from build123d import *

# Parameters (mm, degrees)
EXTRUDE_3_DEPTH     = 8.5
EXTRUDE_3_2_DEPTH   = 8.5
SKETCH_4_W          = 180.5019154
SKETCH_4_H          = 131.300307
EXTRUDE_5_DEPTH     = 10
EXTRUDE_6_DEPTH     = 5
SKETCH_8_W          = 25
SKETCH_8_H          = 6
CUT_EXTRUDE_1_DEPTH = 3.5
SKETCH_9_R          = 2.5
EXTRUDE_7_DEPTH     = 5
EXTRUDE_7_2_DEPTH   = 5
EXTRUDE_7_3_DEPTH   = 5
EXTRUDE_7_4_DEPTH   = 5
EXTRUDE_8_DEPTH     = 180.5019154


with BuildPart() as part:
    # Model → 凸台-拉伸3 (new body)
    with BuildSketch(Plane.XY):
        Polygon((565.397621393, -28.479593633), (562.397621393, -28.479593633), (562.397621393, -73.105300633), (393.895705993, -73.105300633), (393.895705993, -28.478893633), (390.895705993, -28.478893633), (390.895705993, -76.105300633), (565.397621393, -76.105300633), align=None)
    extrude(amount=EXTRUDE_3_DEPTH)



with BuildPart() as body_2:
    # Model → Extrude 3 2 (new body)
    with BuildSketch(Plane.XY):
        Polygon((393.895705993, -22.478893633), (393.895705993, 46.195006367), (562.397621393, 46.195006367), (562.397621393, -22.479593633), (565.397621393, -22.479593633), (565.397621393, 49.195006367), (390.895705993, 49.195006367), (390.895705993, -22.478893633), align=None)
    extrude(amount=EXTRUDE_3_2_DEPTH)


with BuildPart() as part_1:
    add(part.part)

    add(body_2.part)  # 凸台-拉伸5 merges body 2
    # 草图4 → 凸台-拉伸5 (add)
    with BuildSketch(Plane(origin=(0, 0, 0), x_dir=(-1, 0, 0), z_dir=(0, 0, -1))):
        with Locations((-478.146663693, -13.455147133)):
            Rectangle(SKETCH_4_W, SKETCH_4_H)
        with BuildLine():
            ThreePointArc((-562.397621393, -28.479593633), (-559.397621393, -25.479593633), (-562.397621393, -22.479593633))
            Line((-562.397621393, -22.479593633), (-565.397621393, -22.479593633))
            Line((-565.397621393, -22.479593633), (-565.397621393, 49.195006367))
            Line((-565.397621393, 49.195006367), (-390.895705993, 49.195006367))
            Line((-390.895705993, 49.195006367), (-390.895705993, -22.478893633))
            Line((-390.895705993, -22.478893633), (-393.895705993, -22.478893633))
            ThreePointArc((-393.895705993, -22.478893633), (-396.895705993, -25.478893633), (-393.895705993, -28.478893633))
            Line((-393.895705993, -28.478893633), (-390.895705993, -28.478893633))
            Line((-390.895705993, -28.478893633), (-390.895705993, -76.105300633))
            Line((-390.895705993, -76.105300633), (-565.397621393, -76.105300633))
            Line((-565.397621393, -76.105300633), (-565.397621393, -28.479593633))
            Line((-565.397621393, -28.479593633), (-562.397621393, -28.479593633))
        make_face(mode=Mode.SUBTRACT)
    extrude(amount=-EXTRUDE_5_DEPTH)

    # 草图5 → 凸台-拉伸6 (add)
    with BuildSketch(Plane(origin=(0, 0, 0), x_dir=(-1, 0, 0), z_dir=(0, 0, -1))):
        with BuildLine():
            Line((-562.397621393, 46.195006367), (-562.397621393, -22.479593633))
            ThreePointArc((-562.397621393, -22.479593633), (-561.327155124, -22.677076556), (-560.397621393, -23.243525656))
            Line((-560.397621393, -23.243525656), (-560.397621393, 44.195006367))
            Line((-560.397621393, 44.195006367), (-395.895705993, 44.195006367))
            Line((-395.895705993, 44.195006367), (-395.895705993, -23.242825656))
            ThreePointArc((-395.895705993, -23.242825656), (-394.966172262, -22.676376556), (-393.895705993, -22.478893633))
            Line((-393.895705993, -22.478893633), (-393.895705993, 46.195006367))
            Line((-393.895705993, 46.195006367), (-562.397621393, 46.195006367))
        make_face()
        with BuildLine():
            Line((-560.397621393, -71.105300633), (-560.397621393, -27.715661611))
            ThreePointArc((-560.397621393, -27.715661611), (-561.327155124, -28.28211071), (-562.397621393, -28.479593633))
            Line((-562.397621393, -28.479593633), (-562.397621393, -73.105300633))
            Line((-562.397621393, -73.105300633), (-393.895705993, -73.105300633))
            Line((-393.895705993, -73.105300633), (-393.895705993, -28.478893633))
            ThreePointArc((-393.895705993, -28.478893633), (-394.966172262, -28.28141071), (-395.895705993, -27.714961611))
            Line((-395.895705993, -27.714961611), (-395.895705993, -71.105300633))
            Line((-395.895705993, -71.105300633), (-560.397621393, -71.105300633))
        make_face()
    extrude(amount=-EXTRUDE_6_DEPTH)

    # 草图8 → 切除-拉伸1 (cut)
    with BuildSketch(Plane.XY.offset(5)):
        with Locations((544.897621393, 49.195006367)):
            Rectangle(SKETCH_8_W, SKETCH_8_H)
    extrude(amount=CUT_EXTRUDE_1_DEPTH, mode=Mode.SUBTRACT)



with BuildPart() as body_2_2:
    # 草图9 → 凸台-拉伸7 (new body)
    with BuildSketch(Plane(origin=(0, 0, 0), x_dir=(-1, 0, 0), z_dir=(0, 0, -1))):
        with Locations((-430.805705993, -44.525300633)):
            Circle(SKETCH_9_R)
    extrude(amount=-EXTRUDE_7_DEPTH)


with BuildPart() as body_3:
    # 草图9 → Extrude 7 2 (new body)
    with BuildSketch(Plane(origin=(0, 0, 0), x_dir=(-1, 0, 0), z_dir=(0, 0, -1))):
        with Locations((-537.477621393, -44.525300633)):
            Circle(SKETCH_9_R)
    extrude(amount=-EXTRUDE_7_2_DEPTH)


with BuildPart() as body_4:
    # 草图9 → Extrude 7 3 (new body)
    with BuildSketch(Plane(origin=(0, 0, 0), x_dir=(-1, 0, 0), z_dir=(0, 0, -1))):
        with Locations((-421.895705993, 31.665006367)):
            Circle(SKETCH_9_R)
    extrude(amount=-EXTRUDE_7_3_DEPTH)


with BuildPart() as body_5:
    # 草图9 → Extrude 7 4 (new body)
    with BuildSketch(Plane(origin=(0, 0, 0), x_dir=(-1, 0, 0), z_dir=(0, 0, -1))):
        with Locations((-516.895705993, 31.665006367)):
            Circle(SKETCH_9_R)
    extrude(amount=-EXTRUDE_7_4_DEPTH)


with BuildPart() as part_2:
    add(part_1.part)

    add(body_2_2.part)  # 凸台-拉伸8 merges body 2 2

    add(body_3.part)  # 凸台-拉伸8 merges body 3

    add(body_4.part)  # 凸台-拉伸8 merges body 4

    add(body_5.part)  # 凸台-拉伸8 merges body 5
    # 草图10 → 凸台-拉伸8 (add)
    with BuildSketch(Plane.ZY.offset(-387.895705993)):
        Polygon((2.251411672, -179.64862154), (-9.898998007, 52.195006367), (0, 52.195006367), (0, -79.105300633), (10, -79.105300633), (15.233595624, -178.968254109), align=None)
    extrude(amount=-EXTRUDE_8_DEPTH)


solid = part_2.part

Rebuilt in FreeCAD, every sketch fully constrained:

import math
import FreeCAD as App
import Part
import Sketcher
Q = App.Units.Quantity

doc = App.newDocument("Part")
body = doc.addObject("PartDesign::Body", "Body")

sketch1 = body.newObject("Sketcher::SketchObject", "Sketch")
sketch1.AttachmentSupport = (doc.getObject("XY_Plane"), [""])
sketch1.MapMode = "FlatFace"
sketch1.addGeometry([
    Part.LineSegment(App.Vector(565.4, -28.5, 0), App.Vector(562.4, -28.5, 0)),
    Part.LineSegment(App.Vector(562.4, -28.5, 0), App.Vector(562.4, -73.1, 0)),
    Part.LineSegment(App.Vector(562.4, -73.1, 0), App.Vector(393.9, -73.1, 0)),
    Part.LineSegment(App.Vector(393.9, -73.1, 0), App.Vector(393.9, -28.5, 0)),
    Part.LineSegment(App.Vector(393.9, -28.5, 0), App.Vector(390.9, -28.5, 0)),
    Part.LineSegment(App.Vector(390.9, -28.5, 0), App.Vector(390.9, -76.1, 0)),
    Part.LineSegment(App.Vector(390.9, -76.1, 0), App.Vector(565.4, -76.1, 0)),
    Part.LineSegment(App.Vector(565.4, -76.1, 0), App.Vector(565.4, -28.5, 0)),
], False)
sketch1.addConstraint([
    Sketcher.Constraint("Coincident", 0, 2, 1, 1),
    Sketcher.Constraint("Coincident", 1, 2, 2, 1),
    Sketcher.Constraint("Coincident", 2, 2, 3, 1),
    Sketcher.Constraint("Coincident", 3, 2, 4, 1),
    Sketcher.Constraint("Coincident", 4, 2, 5, 1),
    Sketcher.Constraint("Coincident", 5, 2, 6, 1),
    Sketcher.Constraint("Coincident", 6, 2, 7, 1),
    Sketcher.Constraint("Coincident", 7, 2, 0, 1),
    Sketcher.Constraint("Horizontal", 0),
    Sketcher.Constraint("Vertical", 1),
    Sketcher.Constraint("Horizontal", 2),
    Sketcher.Constraint("Vertical", 3),
    Sketcher.Constraint("Horizontal", 4),
    Sketcher.Constraint("Vertical", 5),
    Sketcher.Constraint("Horizontal", 6),
    Sketcher.Constraint("Vertical", 7),
    Sketcher.Constraint("Equal", 0, 4),
    Sketcher.Constraint("DistanceX", 0, 2, 0, 1, 3.0),
    Sketcher.Constraint("DistanceY", 5, 2, 2, 2, 3.0),
    Sketcher.Constraint("DistanceY", 1, 2, -1, 1, 73.105301),
    Sketcher.Constraint("DistanceY", 0, 2, 3, 2, 0.0007),
    Sketcher.Constraint("DistanceX", 2, 2, 2, 1, 168.501915),
    Sketcher.Constraint("DistanceY", 1, 2, 1, 1, 44.625707),
    Sketcher.Constraint("DistanceX", -1, 1, 0, 2, 562.397621),
])
pad1 = body.newObject("PartDesign::Pad", "Pad")
pad1.Profile = sketch1
pad1.Length = 8.5
body2 = doc.addObject("PartDesign::Body", "Body001")

sketch2 = body2.newObject("Sketcher::SketchObject", "Sketch001")
sketch2.AttachmentSupport = (doc.getObject("XY_Plane001"), [""])
sketch2.MapMode = "FlatFace"
sketch2.addGeometry([
    Part.LineSegment(App.Vector(393.9, -22.5, 0), App.Vector(393.9, 46.2, 0)),
    Part.LineSegment(App.Vector(393.9, 46.2, 0), App.Vector(562.4, 46.2, 0)),
    Part.LineSegment(App.Vector(562.4, 46.2, 0), App.Vector(562.4, -22.5, 0)),
    Part.LineSegment(App.Vector(562.4, -22.5, 0), App.Vector(565.4, -22.5, 0)),
    Part.LineSegment(App.Vector(565.4, -22.5, 0), App.Vector(565.4, 49.2, 0)),
    Part.LineSegment(App.Vector(565.4, 49.2, 0), App.Vector(390.9, 49.2, 0)),
    Part.LineSegment(App.Vector(390.9, 49.2, 0), App.Vector(390.9, -22.5, 0)),
    Part.LineSegment(App.Vector(390.9, -22.5, 0), App.Vector(393.9, -22.5, 0)),
], False)
sketch2.addConstraint([
    Sketcher.Constraint("Coincident", 0, 2, 1, 1),
    Sketcher.Constraint("Coincident", 1, 2, 2, 1),
    Sketcher.Constraint("Coincident", 2, 2, 3, 1),
    Sketcher.Constraint("Coincident", 3, 2, 4, 1),
    Sketcher.Constraint("Coincident", 4, 2, 5, 1),
    Sketcher.Constraint("Coincident", 5, 2, 6, 1),
    Sketcher.Constraint("Coincident", 6, 2, 7, 1),
    Sketcher.Constraint("Coincident", 7, 2, 0, 1),
    Sketcher.Constraint("Vertical", 0),
    Sketcher.Constraint("Horizontal", 1),
    Sketcher.Constraint("Vertical", 2),
    Sketcher.Constraint("Horizontal", 3),
    Sketcher.Constraint("Vertical", 4),
    Sketcher.Constraint("Horizontal", 5),
    Sketcher.Constraint("Vertical", 6),
    Sketcher.Constraint("Horizontal", 7),
    Sketcher.Constraint("Equal", 3, 7),
    Sketcher.Constraint("DistanceX", 3, 1, 3, 2, 3.0),
    Sketcher.Constraint("DistanceY", 1, 2, 4, 2, 3.0),
    Sketcher.Constraint("DistanceY", 0, 1, 0, 2, 68.6739),
    Sketcher.Constraint("DistanceY", 2, 2, 2, 1, 68.6746),
    Sketcher.Constraint("DistanceX", 1, 1, 1, 2, 168.501915),
    Sketcher.Constraint("DistanceX", -1, 1, 1, 2, 562.397621),
    Sketcher.Constraint("DistanceY", -1, 1, 0, 2, 46.195006),
])
pad2 = body2.newObject("PartDesign::Pad", "Pad001")
pad2.Profile = sketch2
pad2.Length = 8.5
body.AllowCompound = True
doc.recompute()

boolean = body.newObject("PartDesign::Boolean", "Boolean")
boolean.Type = "Fuse"
boolean.addObjects([body2])

sketch3 = body.newObject("Sketcher::SketchObject", "Sketch002")
sketch3.AttachmentSupport = (doc.getObject("XY_Plane"), [""])
sketch3.MapMode = "FlatFace"
sketch3.addGeometry([
    Part.LineSegment(App.Vector(568.4, 52.2, 0), App.Vector(568.4, -79.1, 0)),
    Part.LineSegment(App.Vector(568.4, -79.1, 0), App.Vector(387.9, -79.1, 0)),
    Part.LineSegment(App.Vector(387.9, -79.1, 0), App.Vector(387.9, 52.2, 0)),
    Part.LineSegment(App.Vector(387.9, 52.2, 0), App.Vector(568.4, 52.2, 0)),
    Part.LineSegment(App.Vector(565.4, -28.5, 0), App.Vector(562.4, -28.5, 0)),
    Part.ArcOfCircle(Part.Circle(App.Vector(562.4, -25.5, 0), App.Vector(0, 0, 1), 3), math.radians(90), math.radians(270)),
    Part.LineSegment(App.Vector(562.4, -22.5, 0), App.Vector(565.4, -22.5, 0)),
    Part.LineSegment(App.Vector(565.4, -22.5, 0), App.Vector(565.4, 49.2, 0)),
    Part.LineSegment(App.Vector(565.4, 49.2, 0), App.Vector(390.9, 49.2, 0)),
    Part.LineSegment(App.Vector(390.9, 49.2, 0), App.Vector(390.9, -22.5, 0)),
    Part.LineSegment(App.Vector(390.9, -22.5, 0), App.Vector(393.9, -22.5, 0)),
    Part.ArcOfCircle(Part.Circle(App.Vector(393.9, -25.5, 0), App.Vector(0, 0, 1), 3), math.radians(-90), math.radians(90)),
    Part.LineSegment(App.Vector(393.9, -28.5, 0), App.Vector(390.9, -28.5, 0)),
    Part.LineSegment(App.Vector(390.9, -28.5, 0), App.Vector(390.9, -76.1, 0)),
    Part.LineSegment(App.Vector(390.9, -76.1, 0), App.Vector(565.4, -76.1, 0)),
    Part.LineSegment(App.Vector(565.4, -76.1, 0), App.Vector(565.4, -28.5, 0)),
], False)
sketch3.addConstraint([
    Sketcher.Constraint("Coincident", 0, 2, 1, 1),
    Sketcher.Constraint("Coincident", 1, 2, 2, 1),
    Sketcher.Constraint("Coincident", 2, 2, 3, 1),
    Sketcher.Constraint("Coincident", 3, 2, 0, 1),
    Sketcher.Constraint("Tangent", 4, 2, 5, 2),
    Sketcher.Constraint("Tangent", 5, 1, 6, 1),
    Sketcher.Constraint("Coincident", 6, 2, 7, 1),
    Sketcher.Constraint("Coincident", 7, 2, 8, 1),
    Sketcher.Constraint("Coincident", 8, 2, 9, 1),
    Sketcher.Constraint("Coincident", 9, 2, 10, 1),
    Sketcher.Constraint("Tangent", 10, 2, 11, 2),
    Sketcher.Constraint("Tangent", 11, 1, 12, 1),
    Sketcher.Constraint("Coincident", 12, 2, 13, 1),
    Sketcher.Constraint("Coincident", 13, 2, 14, 1),
    Sketcher.Constraint("Coincident", 14, 2, 15, 1),
    Sketcher.Constraint("Coincident", 15, 2, 4, 1),
    Sketcher.Constraint("Vertical", 0),
    Sketcher.Constraint("Horizontal", 1),
    Sketcher.Constraint("Vertical", 2),
    Sketcher.Constraint("Horizontal", 3),
    Sketcher.Constraint("Horizontal", 4),
    Sketcher.Constraint("Horizontal", 6),
    Sketcher.Constraint("Vertical", 7),
    Sketcher.Constraint("Horizontal", 8),
    Sketcher.Constraint("Vertical", 9),
    Sketcher.Constraint("Horizontal", 10),
    Sketcher.Constraint("Horizontal", 12),
    Sketcher.Constraint("Vertical", 13),
    Sketcher.Constraint("Horizontal", 14),
    Sketcher.Constraint("Vertical", 15),
    Sketcher.Constraint("Equal", 5, 11),
    Sketcher.Constraint("Vertical", 9, 2, 12, 2),
    Sketcher.Constraint("Vertical", 7, 2, 14, 2),
    Sketcher.Constraint("Equal", 6, 10),
    Sketcher.Constraint("Radius", 5, 3.0),
    Sketcher.Constraint("DistanceX", 4, 2, 4, 1, 3.0),
    Sketcher.Constraint("DistanceX", 5, 3, 0, 2, 6.0),
    Sketcher.Constraint("DistanceX", 1, 2, 11, 3, 6.0),
    Sketcher.Constraint("DistanceY", 7, 2, 3, 2, 3.0),
    Sketcher.Constraint("DistanceY", 1, 2, 13, 2, 3.0),
    Sketcher.Constraint("DistanceY", 7, 1, 7, 2, 71.6746),
    Sketcher.Constraint("DistanceY", 9, 2, 9, 1, 71.6739),
    Sketcher.Constraint("DistanceY", 0, 2, -1, 1, 79.105301),
    Sketcher.Constraint("DistanceX", 1, 2, 1, 1, 180.501915),
    Sketcher.Constraint("DistanceY", 0, 2, 0, 1, 131.300307),
    Sketcher.Constraint("DistanceX", -1, 1, 5, 3, 562.397621),
])
pad3 = body.newObject("PartDesign::Pad", "Pad002")
pad3.Profile = sketch3
pad3.Length = 10

sketch4 = body.newObject("Sketcher::SketchObject", "Sketch003")
sketch4.AttachmentSupport = (doc.getObject("XY_Plane"), [""])
sketch4.MapMode = "FlatFace"
sketch4.addGeometry([
    Part.LineSegment(App.Vector(562.4, 46.2, 0), App.Vector(562.4, -22.5, 0)),
    Part.ArcOfCircle(Part.Circle(App.Vector(562.4, -25.5, 0), App.Vector(0, 0, 1), 3), math.radians(90), math.radians(132)),
    Part.LineSegment(App.Vector(560.4, -23.2, 0), App.Vector(560.4, 44.2, 0)),
    Part.LineSegment(App.Vector(560.4, 44.2, 0), App.Vector(395.9, 44.2, 0)),
    Part.LineSegment(App.Vector(395.9, 44.2, 0), App.Vector(395.9, -23.2, 0)),
    Part.ArcOfCircle(Part.Circle(App.Vector(393.9, -25.5, 0), App.Vector(0, 0, 1), 3), math.radians(48), math.radians(90)),
    Part.LineSegment(App.Vector(393.9, -22.5, 0), App.Vector(393.9, 46.2, 0)),
    Part.LineSegment(App.Vector(393.9, 46.2, 0), App.Vector(562.4, 46.2, 0)),
    Part.LineSegment(App.Vector(560.4, -71.1, 0), App.Vector(560.4, -27.7, 0)),
    Part.ArcOfCircle(Part.Circle(App.Vector(562.4, -25.5, 0), App.Vector(0, 0, 1), 3), math.radians(-132), math.radians(-90)),
    Part.LineSegment(App.Vector(562.4, -28.5, 0), App.Vector(562.4, -73.1, 0)),
    Part.LineSegment(App.Vector(562.4, -73.1, 0), App.Vector(393.9, -73.1, 0)),
    Part.LineSegment(App.Vector(393.9, -73.1, 0), App.Vector(393.9, -28.5, 0)),
    Part.ArcOfCircle(Part.Circle(App.Vector(393.9, -25.5, 0), App.Vector(0, 0, 1), 3), math.radians(-90), math.radians(-48)),
    Part.LineSegment(App.Vector(395.9, -27.7, 0), App.Vector(395.9, -71.1, 0)),
    Part.LineSegment(App.Vector(395.9, -71.1, 0), App.Vector(560.4, -71.1, 0)),
], False)
sketch4.addConstraint([
    Sketcher.Constraint("Coincident", 0, 2, 1, 1),
    Sketcher.Constraint("Coincident", 1, 2, 2, 1),
    Sketcher.Constraint("Coincident", 2, 2, 3, 1),
    Sketcher.Constraint("Coincident", 3, 2, 4, 1),
    Sketcher.Constraint("Coincident", 4, 2, 5, 1),
    Sketcher.Constraint("Coincident", 5, 2, 6, 1),
    Sketcher.Constraint("Coincident", 6, 2, 7, 1),
    Sketcher.Constraint("Coincident", 7, 2, 0, 1),
    Sketcher.Constraint("Coincident", 8, 2, 9, 1),
    Sketcher.Constraint("Coincident", 9, 2, 10, 1),
    Sketcher.Constraint("Coincident", 10, 2, 11, 1),
    Sketcher.Constraint("Coincident", 11, 2, 12, 1),
    Sketcher.Constraint("Coincident", 12, 2, 13, 1),
    Sketcher.Constraint("Coincident", 13, 2, 14, 1),
    Sketcher.Constraint("Coincident", 14, 2, 15, 1),
    Sketcher.Constraint("Coincident", 15, 2, 8, 1),
    Sketcher.Constraint("Vertical", 0),
    Sketcher.Constraint("Vertical", 2),
    Sketcher.Constraint("Horizontal", 3),
    Sketcher.Constraint("Vertical", 4),
    Sketcher.Constraint("Vertical", 6),
    Sketcher.Constraint("Horizontal", 7),
    Sketcher.Constraint("Vertical", 8),
    Sketcher.Constraint("Vertical", 10),
    Sketcher.Constraint("Horizontal", 11),
    Sketcher.Constraint("Vertical", 12),
    Sketcher.Constraint("Vertical", 14),
    Sketcher.Constraint("Horizontal", 15),
    Sketcher.Constraint("Coincident", 9, 3, 1, 3),
    Sketcher.Constraint("Coincident", 13, 3, 5, 3),
    Sketcher.Constraint("Equal", 1, 5),
    Sketcher.Constraint("Equal", 5, 9),
    Sketcher.Constraint("Equal", 9, 13),
    Sketcher.Constraint("Vertical", 9, 3, 0, 2),
    Sketcher.Constraint("Vertical", 13, 3, 5, 2),
    Sketcher.Constraint("Vertical", 2, 2, 8, 2),
    Sketcher.Constraint("Vertical", 7, 2, 9, 2),
    Sketcher.Constraint("Vertical", 6, 2, 11, 2),
    Sketcher.Constraint("Vertical", 4, 2, 13, 2),
    Sketcher.Constraint("Radius", 1, 3.0),
    Sketcher.Constraint("DistanceX", 1, 2, 0, 2, 2.0),
    Sketcher.Constraint("DistanceX", 5, 3, 3, 2, 2.0),
    Sketcher.Constraint("DistanceY", 3, 2, 6, 2, 2.0),
    Sketcher.Constraint("DistanceY", 11, 2, 14, 2, 2.0),
    Sketcher.Constraint("DistanceY", 0, 2, 0, 1, 68.6746),
    Sketcher.Constraint("DistanceY", 6, 1, 6, 2, 68.6739),
    Sketcher.Constraint("DistanceY", 8, 1, 8, 2, 43.389639),
    Sketcher.Constraint("DistanceY", 10, 2, -1, 1, 73.105301),
    Sketcher.Constraint("DistanceX", 3, 2, 3, 1, 164.501915),
    Sketcher.Constraint("DistanceX", -1, 1, 1, 3, 562.397621),
])
pad4 = body.newObject("PartDesign::Pad", "Pad003")
pad4.Profile = sketch4
pad4.Length = 5

sketch5 = body.newObject("Sketcher::SketchObject", "Sketch004")
sketch5.AttachmentSupport = (doc.getObject("XY_Plane"), [""])
sketch5.MapMode = "FlatFace"
sketch5.AttachmentOffset = App.Placement(App.Vector(0, 0, 5), App.Rotation())
sketch5.addGeometry([
    Part.LineSegment(App.Vector(532, 52, 0), App.Vector(532, 46, 0)),
    Part.LineSegment(App.Vector(532, 46, 0), App.Vector(557, 46, 0)),
    Part.LineSegment(App.Vector(557, 46, 0), App.Vector(557, 52, 0)),
    Part.LineSegment(App.Vector(557, 52, 0), App.Vector(532, 52, 0)),
], False)
sketch5.addConstraint([
    Sketcher.Constraint("Coincident", 0, 2, 1, 1),
    Sketcher.Constraint("Coincident", 1, 2, 2, 1),
    Sketcher.Constraint("Coincident", 2, 2, 3, 1),
    Sketcher.Constraint("Coincident", 3, 2, 0, 1),
    Sketcher.Constraint("Vertical", 0),
    Sketcher.Constraint("Horizontal", 1),
    Sketcher.Constraint("Vertical", 2),
    Sketcher.Constraint("Horizontal", 3),
    Sketcher.Constraint("DistanceX", 1, 1, 1, 2, 25.0),
    Sketcher.Constraint("DistanceY", 0, 2, 0, 1, 6.0),
    Sketcher.Constraint("DistanceX", -1, 1, 0, 2, 532.397621),
    Sketcher.Constraint("DistanceY", -1, 1, 0, 2, 46.195006),
])
pocket1 = body.newObject("PartDesign::Pocket", "Pocket")
pocket1.Profile = sketch5
pocket1.Length = 3.5
pocket1.Reversed = True
body3 = doc.addObject("PartDesign::Body", "Body002")

sketch6 = body3.newObject("Sketcher::SketchObject", "Sketch005")
sketch6.AttachmentSupport = (doc.getObject("XY_Plane002"), [""])
sketch6.MapMode = "FlatFace"
sketch6.addGeometry(Part.Circle(App.Vector(430.8, -44.5, 0), App.Vector(0, 0, 1), 2.5), False)
sketch6.addConstraint([
    Sketcher.Constraint("Diameter", 0, 5.0),
    Sketcher.Constraint("DistanceY", 0, 3, -1, 1, 44.525301),
    Sketcher.Constraint("DistanceX", -1, 1, 0, 3, 430.805706),
])
pad5 = body3.newObject("PartDesign::Pad", "Pad004")
pad5.Profile = sketch6
pad5.Length = 5
body4 = doc.addObject("PartDesign::Body", "Body003")

sketch7 = body4.newObject("Sketcher::SketchObject", "Sketch006")
sketch7.AttachmentSupport = (doc.getObject("XY_Plane003"), [""])
sketch7.MapMode = "FlatFace"
sketch7.addGeometry(Part.Circle(App.Vector(537.5, -44.5, 0), App.Vector(0, 0, 1), 2.5), False)
sketch7.addConstraint([
    Sketcher.Constraint("Diameter", 0, 5.0),
    Sketcher.Constraint("DistanceY", 0, 3, -1, 1, 44.525301),
    Sketcher.Constraint("DistanceX", -1, 1, 0, 3, 537.477621),
])
pad6 = body4.newObject("PartDesign::Pad", "Pad005")
pad6.Profile = sketch7
pad6.Length = 5
body5 = doc.addObject("PartDesign::Body", "Body004")

sketch8 = body5.newObject("Sketcher::SketchObject", "Sketch007")
sketch8.AttachmentSupport = (doc.getObject("XY_Plane004"), [""])
sketch8.MapMode = "FlatFace"
sketch8.addGeometry(Part.Circle(App.Vector(421.9, 31.7, 0), App.Vector(0, 0, 1), 2.5), False)
sketch8.addConstraint([
    Sketcher.Constraint("Diameter", 0, 5.0),
    Sketcher.Constraint("DistanceX", -1, 1, 0, 3, 421.895706),
    Sketcher.Constraint("DistanceY", -1, 1, 0, 3, 31.665006),
])
pad7 = body5.newObject("PartDesign::Pad", "Pad006")
pad7.Profile = sketch8
pad7.Length = 5
body6 = doc.addObject("PartDesign::Body", "Body005")

sketch9 = body6.newObject("Sketcher::SketchObject", "Sketch008")
sketch9.AttachmentSupport = (doc.getObject("XY_Plane005"), [""])
sketch9.MapMode = "FlatFace"
sketch9.addGeometry(Part.Circle(App.Vector(516.9, 31.7, 0), App.Vector(0, 0, 1), 2.5), False)
sketch9.addConstraint([
    Sketcher.Constraint("Diameter", 0, 5.0),
    Sketcher.Constraint("DistanceX", -1, 1, 0, 3, 516.895706),
    Sketcher.Constraint("DistanceY", -1, 1, 0, 3, 31.665006),
])
pad8 = body6.newObject("PartDesign::Pad", "Pad007")
pad8.Profile = sketch9
pad8.Length = 5
body.AllowCompound = True
doc.recompute()

boolean2 = body.newObject("PartDesign::Boolean", "Boolean001")
boolean2.Type = "Fuse"
boolean2.addObjects([body3])
doc.recompute()

boolean3 = body.newObject("PartDesign::Boolean", "Boolean002")
boolean3.Type = "Fuse"
boolean3.addObjects([body4])
doc.recompute()

boolean4 = body.newObject("PartDesign::Boolean", "Boolean003")
boolean4.Type = "Fuse"
boolean4.addObjects([body5])
doc.recompute()

boolean5 = body.newObject("PartDesign::Boolean", "Boolean004")
boolean5.Type = "Fuse"
boolean5.addObjects([body6])

sketch10 = body.newObject("Sketcher::SketchObject", "Sketch009")
sketch10.AttachmentSupport = (doc.getObject("YZ_Plane"), [""])
sketch10.MapMode = "FlatFace"
sketch10.AttachmentOffset = App.Placement(App.Vector(0, 0, 387.895706), App.Rotation())
sketch10.addGeometry([
    Part.LineSegment(App.Vector(52, -10, 0), App.Vector(-180, 2, 0)),
    Part.LineSegment(App.Vector(-180, 2, 0), App.Vector(-179, 15, 0)),
    Part.LineSegment(App.Vector(-179, 15, 0), App.Vector(-79, 10, 0)),
    Part.LineSegment(App.Vector(-79, 10, 0), App.Vector(-79, 0, 0)),
    Part.LineSegment(App.Vector(-79, 0, 0), App.Vector(52, 0, 0)),
    Part.LineSegment(App.Vector(52, 0, 0), App.Vector(52, -10, 0)),
], False)
sketch10.addConstraint([
    Sketcher.Constraint("Coincident", 0, 2, 1, 1),
    Sketcher.Constraint("Coincident", 1, 2, 2, 1),
    Sketcher.Constraint("Coincident", 2, 2, 3, 1),
    Sketcher.Constraint("Coincident", 3, 2, 4, 1),
    Sketcher.Constraint("Coincident", 4, 2, 5, 1),
    Sketcher.Constraint("Coincident", 5, 2, 0, 1),
    Sketcher.Constraint("Vertical", 3),
    Sketcher.Constraint("Horizontal", 4),
    Sketcher.Constraint("Vertical", 5),
    Sketcher.Constraint("PointOnObject", 3, 2, -1),
    Sketcher.Constraint("Perpendicular", 0, 1),
    Sketcher.Constraint("Perpendicular", 1, 2),
    Sketcher.Constraint("DistanceY", 3, 2, 3, 1, 10.0),
    Sketcher.Constraint("Angle", 0, Q("177 deg")),
    Sketcher.Constraint("Distance", 1, 13.0),
    Sketcher.Constraint("Distance", 2, 100.0),
    Sketcher.Constraint("DistanceY", 5, 2, 5, 1, 9.898998),
    Sketcher.Constraint("DistanceX", 2, 2, -1, 1, 79.105301),
])
pad9 = body.newObject("PartDesign::Pad", "Pad008")
pad9.Profile = sketch10
pad9.Length = 180.501915

doc.recompute()
